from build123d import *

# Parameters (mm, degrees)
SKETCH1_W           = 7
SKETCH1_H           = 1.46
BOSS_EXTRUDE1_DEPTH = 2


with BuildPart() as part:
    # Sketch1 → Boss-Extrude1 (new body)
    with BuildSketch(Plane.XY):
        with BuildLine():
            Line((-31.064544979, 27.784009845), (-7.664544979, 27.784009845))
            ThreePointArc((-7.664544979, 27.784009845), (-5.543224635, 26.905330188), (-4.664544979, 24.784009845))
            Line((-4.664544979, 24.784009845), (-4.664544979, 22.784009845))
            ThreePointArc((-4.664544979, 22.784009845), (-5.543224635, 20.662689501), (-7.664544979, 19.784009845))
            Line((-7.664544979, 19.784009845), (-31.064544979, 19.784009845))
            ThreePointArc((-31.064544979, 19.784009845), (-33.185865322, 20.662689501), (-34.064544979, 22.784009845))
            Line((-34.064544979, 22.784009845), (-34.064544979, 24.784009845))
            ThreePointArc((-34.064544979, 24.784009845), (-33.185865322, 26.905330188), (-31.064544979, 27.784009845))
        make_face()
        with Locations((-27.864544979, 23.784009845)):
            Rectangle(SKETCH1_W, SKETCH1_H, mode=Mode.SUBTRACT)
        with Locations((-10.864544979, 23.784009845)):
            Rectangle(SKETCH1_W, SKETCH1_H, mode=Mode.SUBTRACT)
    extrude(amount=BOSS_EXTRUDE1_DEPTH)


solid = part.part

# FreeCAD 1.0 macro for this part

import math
import FreeCAD as App
import Part
import Sketcher
from FreeCAD import Vector
Q = App.Units.Quantity


def add_polygon(sketch, points):
    """Adds a closed chain of lines whose ends are joined by coincident constraints."""
    first, n = sketch.GeometryCount, len(points)
    for a, b in zip(points, points[1:] + points[:1]):
        sketch.addGeometry(Part.LineSegment(App.Vector(*a, 0), App.Vector(*b, 0)), False)
    for i in range(n):
        sketch.addConstraint(Sketcher.Constraint("Coincident", first + i, 2, first + (i + 1) % n, 1))

doc = App.newDocument("Part")
body = doc.addObject("PartDesign::Body", "Body")

sketch1 = body.newObject("Sketcher::SketchObject", "Sketch")
sketch1.AttachmentSupport = (doc.getObject("XY_Plane"), [""])
sketch1.MapMode = "FlatFace"
sketch1.addGeometry(Part.LineSegment(Vector(-7.664545, 27.78401, 0), Vector(-31.064545, 27.78401, 0)), False)
sketch1.addGeometry(Part.ArcOfCircle(Part.Circle(Vector(-31.064545, 24.78401, 0), Vector(0, 0, 1), 3), math.radians(90), math.radians(180)), False)
sketch1.addGeometry(Part.LineSegment(Vector(-34.064545, 24.78401, 0), Vector(-34.064545, 22.78401, 0)), False)
sketch1.addGeometry(Part.ArcOfCircle(Part.Circle(Vector(-31.064545, 22.78401, 0), Vector(0, 0, 1), 3), math.radians(180), math.radians(270)), False)
sketch1.addGeometry(Part.LineSegment(Vector(-31.064545, 19.78401, 0), Vector(-7.664545, 19.78401, 0)), False)
sketch1.addGeometry(Part.ArcOfCircle(Part.Circle(Vector(-7.664545, 22.78401, 0), Vector(0, 0, 1), 3), math.radians(-90), math.radians(0)), False)
sketch1.addGeometry(Part.LineSegment(Vector(-4.664545, 22.78401, 0), Vector(-4.664545, 24.78401, 0)), False)
sketch1.addGeometry(Part.ArcOfCircle(Part.Circle(Vector(-7.664545, 24.78401, 0), Vector(0, 0, 1), 3), math.radians(0), math.radians(90)), False)
add_polygon(sketch1, [(-14.364545, 23.05401), (-14.364545, 24.51401), (-7.364545, 24.51401), (-7.364545, 23.05401)])
add_polygon(sketch1, [(-31.364545, 23.05401), (-31.364545, 24.51401), (-24.364545, 24.51401), (-24.364545, 23.05401)])
sketch1.addConstraint(Sketcher.Constraint("Tangent", 0, 2, 1, 1))
sketch1.addConstraint(Sketcher.Constraint("Tangent", 1, 2, 2, 1))
sketch1.addConstraint(Sketcher.Constraint("Tangent", 2, 2, 3, 1))
sketch1.addConstraint(Sketcher.Constraint("Tangent", 3, 2, 4, 1))
sketch1.addConstraint(Sketcher.Constraint("Tangent", 4, 2, 5, 1))
sketch1.addConstraint(Sketcher.Constraint("Tangent", 5, 2, 6, 1))
sketch1.addConstraint(Sketcher.Constraint("Tangent", 6, 2, 7, 1))
sketch1.addConstraint(Sketcher.Constraint("Tangent", 7, 2, 0, 1))
sketch1.addConstraint(Sketcher.Constraint("Horizontal", 0))
sketch1.addConstraint(Sketcher.Constraint("Vertical", 2))
sketch1.addConstraint(Sketcher.Constraint("Horizontal", 4))
sketch1.addConstraint(Sketcher.Constraint("Vertical", 6))
sketch1.addConstraint(Sketcher.Constraint("Vertical", 8))
sketch1.addConstraint(Sketcher.Constraint("Horizontal", 9))
sketch1.addConstraint(Sketcher.Constraint("Vertical", 10))
sketch1.addConstraint(Sketcher.Constraint("Horizontal", 11))
sketch1.addConstraint(Sketcher.Constraint("Vertical", 12))
sketch1.addConstraint(Sketcher.Constraint("Horizontal", 13))
sketch1.addConstraint(Sketcher.Constraint("Vertical", 14))
sketch1.addConstraint(Sketcher.Constraint("Horizontal", 15))
sketch1.addConstraint(Sketcher.Constraint("Equal", 1, 3))
sketch1.addConstraint(Sketcher.Constraint("Equal", 3, 5))
sketch1.addConstraint(Sketcher.Constraint("Equal", 5, 7))
sketch1.addConstraint(Sketcher.Constraint("Horizontal", 9, 2, 12, 2))
sketch1.addConstraint(Sketcher.Constraint("Horizontal", 11, 2, 14, 2))
sketch1.addConstraint(Sketcher.Constraint("Equal", 11, 13))
sketch1.addConstraint(Sketcher.Constraint("Radius", 1, Q("3 mm")))
sketch1.addConstraint(Sketcher.Constraint("DistanceX", 9, 1, 9, 2, Q("7 mm")))
sketch1.addConstraint(Sketcher.Constraint("DistanceY", 2, 2, 2, 1, Q("2 mm")))
sketch1.addConstraint(Sketcher.Constraint("DistanceX", 0, 2, 0, 1, Q("23.4 mm")))
sketch1.addConstraint(Sketcher.Constraint("DistanceY", 8, 1, 8, 2, Q("1.46 mm")))
sketch1.addConstraint(Sketcher.Constraint("DistanceX", 8, 2, 7, 3, Q("6.7 mm")))
sketch1.addConstraint(Sketcher.Constraint("DistanceX", 12, 2, 1, 3, Q("0.3 mm")))
sketch1.addConstraint(Sketcher.Constraint("DistanceY", 8, 2, 7, 3, Q("0.27 mm")))
sketch1.addConstraint(Sketcher.Constraint("DistanceY", -1, 1, 1, 3, Q("24.78401 mm")))
sketch1.addConstraint(Sketcher.Constraint("DistanceX", 1, 3, -1, 1, Q("31.064545 mm")))
pad1 = body.newObject("PartDesign::Pad", "Pad")
pad1.Profile = sketch1
pad1.Length = 2

doc.recompute()
